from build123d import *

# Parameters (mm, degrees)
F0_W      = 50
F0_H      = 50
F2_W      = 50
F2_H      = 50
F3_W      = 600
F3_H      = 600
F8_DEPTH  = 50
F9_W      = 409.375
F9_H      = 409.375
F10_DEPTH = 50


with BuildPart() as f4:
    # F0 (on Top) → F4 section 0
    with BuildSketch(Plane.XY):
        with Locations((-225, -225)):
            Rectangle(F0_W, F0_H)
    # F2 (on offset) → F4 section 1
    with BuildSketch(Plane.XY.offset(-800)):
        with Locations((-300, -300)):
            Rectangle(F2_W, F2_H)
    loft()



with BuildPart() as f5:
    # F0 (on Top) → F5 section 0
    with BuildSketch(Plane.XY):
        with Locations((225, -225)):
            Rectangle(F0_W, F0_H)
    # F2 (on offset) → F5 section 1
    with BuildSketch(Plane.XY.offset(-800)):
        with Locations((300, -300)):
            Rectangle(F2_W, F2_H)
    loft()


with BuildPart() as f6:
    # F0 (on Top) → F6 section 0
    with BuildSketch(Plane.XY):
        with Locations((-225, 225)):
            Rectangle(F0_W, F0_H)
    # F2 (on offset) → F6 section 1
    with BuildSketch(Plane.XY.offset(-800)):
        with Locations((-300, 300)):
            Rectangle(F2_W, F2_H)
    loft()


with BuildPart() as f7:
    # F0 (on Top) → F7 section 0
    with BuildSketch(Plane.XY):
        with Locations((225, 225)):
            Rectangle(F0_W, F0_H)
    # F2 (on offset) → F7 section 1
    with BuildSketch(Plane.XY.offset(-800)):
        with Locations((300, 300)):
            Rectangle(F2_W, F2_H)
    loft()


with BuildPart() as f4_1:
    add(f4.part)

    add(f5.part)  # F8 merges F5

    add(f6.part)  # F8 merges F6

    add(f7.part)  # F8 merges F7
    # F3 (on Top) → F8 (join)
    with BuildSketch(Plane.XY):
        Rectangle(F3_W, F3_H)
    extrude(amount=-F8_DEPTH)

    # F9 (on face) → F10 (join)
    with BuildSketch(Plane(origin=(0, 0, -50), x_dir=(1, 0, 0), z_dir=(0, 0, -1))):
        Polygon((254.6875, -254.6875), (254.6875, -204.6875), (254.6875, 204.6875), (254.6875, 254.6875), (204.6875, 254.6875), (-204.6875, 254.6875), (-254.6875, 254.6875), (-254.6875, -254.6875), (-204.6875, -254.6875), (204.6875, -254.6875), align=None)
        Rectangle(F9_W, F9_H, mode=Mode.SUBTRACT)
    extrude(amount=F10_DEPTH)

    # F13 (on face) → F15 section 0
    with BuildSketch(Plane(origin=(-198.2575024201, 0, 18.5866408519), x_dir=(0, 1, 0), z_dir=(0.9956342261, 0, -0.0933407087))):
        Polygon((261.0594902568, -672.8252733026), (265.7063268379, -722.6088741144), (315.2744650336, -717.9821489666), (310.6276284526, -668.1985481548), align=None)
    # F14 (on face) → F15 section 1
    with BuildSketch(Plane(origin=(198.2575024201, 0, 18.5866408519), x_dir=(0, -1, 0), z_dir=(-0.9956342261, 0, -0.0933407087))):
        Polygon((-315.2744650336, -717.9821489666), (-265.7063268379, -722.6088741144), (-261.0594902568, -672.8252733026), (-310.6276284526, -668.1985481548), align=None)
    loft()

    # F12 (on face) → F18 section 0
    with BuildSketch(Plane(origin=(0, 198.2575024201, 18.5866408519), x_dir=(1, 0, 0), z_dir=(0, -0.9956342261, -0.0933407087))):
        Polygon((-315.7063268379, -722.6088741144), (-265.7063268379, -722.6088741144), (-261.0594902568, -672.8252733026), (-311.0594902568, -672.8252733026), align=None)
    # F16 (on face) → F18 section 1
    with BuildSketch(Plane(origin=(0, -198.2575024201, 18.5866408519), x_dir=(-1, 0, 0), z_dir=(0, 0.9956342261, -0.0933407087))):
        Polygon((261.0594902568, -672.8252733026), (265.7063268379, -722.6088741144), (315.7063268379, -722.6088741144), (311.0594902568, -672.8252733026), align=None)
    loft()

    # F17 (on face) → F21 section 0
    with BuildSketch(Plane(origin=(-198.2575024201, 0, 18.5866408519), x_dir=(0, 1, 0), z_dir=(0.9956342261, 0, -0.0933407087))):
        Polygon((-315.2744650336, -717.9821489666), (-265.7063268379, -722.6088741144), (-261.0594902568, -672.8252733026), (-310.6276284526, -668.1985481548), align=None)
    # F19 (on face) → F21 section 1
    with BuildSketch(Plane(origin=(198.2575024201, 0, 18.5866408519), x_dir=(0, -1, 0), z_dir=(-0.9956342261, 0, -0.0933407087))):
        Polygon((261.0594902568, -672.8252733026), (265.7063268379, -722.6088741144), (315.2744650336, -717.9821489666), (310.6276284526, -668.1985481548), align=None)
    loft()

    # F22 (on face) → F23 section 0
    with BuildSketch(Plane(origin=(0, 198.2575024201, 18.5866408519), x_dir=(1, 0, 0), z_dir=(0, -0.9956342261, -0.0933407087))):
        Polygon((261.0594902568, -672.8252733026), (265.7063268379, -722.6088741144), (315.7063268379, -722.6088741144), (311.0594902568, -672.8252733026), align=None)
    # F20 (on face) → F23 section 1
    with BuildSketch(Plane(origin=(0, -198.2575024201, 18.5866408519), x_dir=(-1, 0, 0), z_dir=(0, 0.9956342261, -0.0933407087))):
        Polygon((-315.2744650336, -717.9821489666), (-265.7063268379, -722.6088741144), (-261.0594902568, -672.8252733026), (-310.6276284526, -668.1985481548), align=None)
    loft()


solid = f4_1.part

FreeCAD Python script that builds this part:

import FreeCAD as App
import Part
import Sketcher
Q = App.Units.Quantity

doc = App.newDocument("Part")
body = doc.addObject("PartDesign::Body", "Body")

sketch1 = body.newObject("Sketcher::SketchObject", "Sketch")
sketch1.AttachmentSupport = (doc.getObject("XY_Plane"), [""])
sketch1.MapMode = "FlatFace"
sketch1.addGeometry(Part.LineSegment(App.Vector(-250, -200, 0), App.Vector(-250, -250, 0)), False)
sketch1.addGeometry(Part.LineSegment(App.Vector(-250, -250, 0), App.Vector(-200, -250, 0)), False)
sketch1.addGeometry(Part.LineSegment(App.Vector(-200, -250, 0), App.Vector(-200, -200, 0)), False)
sketch1.addGeometry(Part.LineSegment(App.Vector(-200, -200, 0), App.Vector(-250, -200, 0)), False)
sketch1.addConstraint(Sketcher.Constraint("Coincident", 0, 2, 1, 1))
sketch1.addConstraint(Sketcher.Constraint("Coincident", 1, 2, 2, 1))
sketch1.addConstraint(Sketcher.Constraint("Coincident", 2, 2, 3, 1))
sketch1.addConstraint(Sketcher.Constraint("Coincident", 3, 2, 0, 1))
sketch1.addConstraint(Sketcher.Constraint("Vertical", 0))
sketch1.addConstraint(Sketcher.Constraint("Horizontal", 1))
sketch1.addConstraint(Sketcher.Constraint("Vertical", 2))
sketch1.addConstraint(Sketcher.Constraint("Horizontal", 3))
sketch1.addConstraint(Sketcher.Constraint("Equal", 3, 0))
sketch1.addConstraint(Sketcher.Constraint("DistanceX", 1, 1, 1, 2, Q("50 mm")))
sketch1.addConstraint(Sketcher.Constraint("DistanceX", 0, 2, -1, 1, Q("250 mm")))
sketch1.addConstraint(Sketcher.Constraint("DistanceY", 0, 2, -1, 1, Q("250 mm")))

sketch2 = body.newObject("Sketcher::SketchObject", "Sketch001")
sketch2.AttachmentSupport = (doc.getObject("XY_Plane"), [""])
sketch2.MapMode = "FlatFace"
sketch2.AttachmentOffset = App.Placement(App.Vector(0, 0, -800), App.Rotation())
sketch2.addGeometry(Part.LineSegment(App.Vector(-325, -275, 0), App.Vector(-325, -325, 0)), False)
sketch2.addGeometry(Part.LineSegment(App.Vector(-325, -325, 0), App.Vector(-275, -325, 0)), False)
sketch2.addGeometry(Part.LineSegment(App.Vector(-275, -325, 0), App.Vector(-275, -275, 0)), False)
sketch2.addGeometry(Part.LineSegment(App.Vector(-275, -275, 0), App.Vector(-325, -275, 0)), False)
sketch2.addConstraint(Sketcher.Constraint("Coincident", 0, 2, 1, 1))
sketch2.addConstraint(Sketcher.Constraint("Coincident", 1, 2, 2, 1))
sketch2.addConstraint(Sketcher.Constraint("Coincident", 2, 2, 3, 1))
sketch2.addConstraint(Sketcher.Constraint("Coincident", 3, 2, 0, 1))
sketch2.addConstraint(Sketcher.Constraint("Vertical", 0))
sketch2.addConstraint(Sketcher.Constraint("Horizontal", 1))
sketch2.addConstraint(Sketcher.Constraint("Vertical", 2))
sketch2.addConstraint(Sketcher.Constraint("Horizontal", 3))
sketch2.addConstraint(Sketcher.Constraint("Equal", 3, 0))
sketch2.addConstraint(Sketcher.Constraint("DistanceX", 1, 1, 1, 2, Q("50 mm")))
sketch2.addConstraint(Sketcher.Constraint("DistanceX", 0, 2, -1, 1, Q("325 mm")))
sketch2.addConstraint(Sketcher.Constraint("DistanceY", 0, 2, -1, 1, Q("325 mm")))

additiveloft = body.newObject("PartDesign::AdditiveLoft", "AdditiveLoft")
additiveloft.Profile = sketch1
additiveloft.Sections = [sketch2]
body2 = doc.addObject("PartDesign::Body", "Body001")

sketch3 = body2.newObject("Sketcher::SketchObject", "Sketch002")
sketch3.AttachmentSupport = (doc.getObject("XY_Plane001"), [""])
sketch3.MapMode = "FlatFace"
sketch3.addGeometry(Part.LineSegment(App.Vector(200, -200, 0), App.Vector(200, -250, 0)), False)
sketch3.addGeometry(Part.LineSegment(App.Vector(200, -250, 0), App.Vector(250, -250, 0)), False)
sketch3.addGeometry(Part.LineSegment(App.Vector(250, -250, 0), App.Vector(250, -200, 0)), False)
sketch3.addGeometry(Part.LineSegment(App.Vector(250, -200, 0), App.Vector(200, -200, 0)), False)
sketch3.addConstraint(Sketcher.Constraint("Coincident", 0, 2, 1, 1))
sketch3.addConstraint(Sketcher.Constraint("Coincident", 1, 2, 2, 1))
sketch3.addConstraint(Sketcher.Constraint("Coincident", 2, 2, 3, 1))
sketch3.addConstraint(Sketcher.Constraint("Coincident", 3, 2, 0, 1))
sketch3.addConstraint(Sketcher.Constraint("Vertical", 0))
sketch3.addConstraint(Sketcher.Constraint("Horizontal", 1))
sketch3.addConstraint(Sketcher.Constraint("Vertical", 2))
sketch3.addConstraint(Sketcher.Constraint("Horizontal", 3))
sketch3.addConstraint(Sketcher.Constraint("Equal", 3, 0))
sketch3.addConstraint(Sketcher.Constraint("DistanceX", 1, 1, 1, 2, Q("50 mm")))
sketch3.addConstraint(Sketcher.Constraint("DistanceX", -1, 1, 0, 2, Q("200 mm")))
sketch3.addConstraint(Sketcher.Constraint("DistanceY", 0, 2, -1, 1, Q("250 mm")))

sketch4 = body2.newObject("Sketcher::SketchObject", "Sketch003")
sketch4.AttachmentSupport = (doc.getObject("XY_Plane001"), [""])
sketch4.MapMode = "FlatFace"
sketch4.AttachmentOffset = App.Placement(App.Vector(0, 0, -800), App.Rotation())
sketch4.addGeometry(Part.LineSegment(App.Vector(275, -275, 0), App.Vector(275, -325, 0)), False)
sketch4.addGeometry(Part.LineSegment(App.Vector(275, -325, 0), App.Vector(325, -325, 0)), False)
sketch4.addGeometry(Part.LineSegment(App.Vector(325, -325, 0), App.Vector(325, -275, 0)), False)
sketch4.addGeometry(Part.LineSegment(App.Vector(325, -275, 0), App.Vector(275, -275, 0)), False)
sketch4.addConstraint(Sketcher.Constraint("Coincident", 0, 2, 1, 1))
sketch4.addConstraint(Sketcher.Constraint("Coincident", 1, 2, 2, 1))
sketch4.addConstraint(Sketcher.Constraint("Coincident", 2, 2, 3, 1))
sketch4.addConstraint(Sketcher.Constraint("Coincident", 3, 2, 0, 1))
sketch4.addConstraint(Sketcher.Constraint("Vertical", 0))
sketch4.addConstraint(Sketcher.Constraint("Horizontal", 1))
sketch4.addConstraint(Sketcher.Constraint("Vertical", 2))
sketch4.addConstraint(Sketcher.Constraint("Horizontal", 3))
sketch4.addConstraint(Sketcher.Constraint("Equal", 3, 0))
sketch4.addConstraint(Sketcher.Constraint("DistanceX", 1, 1, 1, 2, Q("50 mm")))
sketch4.addConstraint(Sketcher.Constraint("DistanceX", -1, 1, 0, 2, Q("275 mm")))
sketch4.addConstraint(Sketcher.Constraint("DistanceY", 0, 2, -1, 1, Q("325 mm")))

additiveloft2 = body2.newObject("PartDesign::AdditiveLoft", "AdditiveLoft001")
additiveloft2.Profile = sketch3
additiveloft2.Sections = [sketch4]
body3 = doc.addObject("PartDesign::Body", "Body002")

sketch5 = body3.newObject("Sketcher::SketchObject", "Sketch004")
sketch5.AttachmentSupport = (doc.getObject("XY_Plane002"), [""])
sketch5.MapMode = "FlatFace"
sketch5.addGeometry(Part.LineSegment(App.Vector(-250, 250, 0), App.Vector(-250, 200, 0)), False)
sketch5.addGeometry(Part.LineSegment(App.Vector(-250, 200, 0), App.Vector(-200, 200, 0)), False)
sketch5.addGeometry(Part.LineSegment(App.Vector(-200, 200, 0), App.Vector(-200, 250, 0)), False)
sketch5.addGeometry(Part.LineSegment(App.Vector(-200, 250, 0), App.Vector(-250, 250, 0)), False)
sketch5.addConstraint(Sketcher.Constraint("Coincident", 0, 2, 1, 1))
sketch5.addConstraint(Sketcher.Constraint("Coincident", 1, 2, 2, 1))
sketch5.addConstraint(Sketcher.Constraint("Coincident", 2, 2, 3, 1))
sketch5.addConstraint(Sketcher.Constraint("Coincident", 3, 2, 0, 1))
sketch5.addConstraint(Sketcher.Constraint("Vertical", 0))
sketch5.addConstraint(Sketcher.Constraint("Horizontal", 1))
sketch5.addConstraint(Sketcher.Constraint("Vertical", 2))
sketch5.addConstraint(Sketcher.Constraint("Horizontal", 3))
sketch5.addConstraint(Sketcher.Constraint("Equal", 3, 0))
sketch5.addConstraint(Sketcher.Constraint("DistanceX", 1, 1, 1, 2, Q("50 mm")))
sketch5.addConstraint(Sketcher.Constraint("DistanceX", 0, 2, -1, 1, Q("250 mm")))
sketch5.addConstraint(Sketcher.Constraint("DistanceY", -1, 1, 0, 2, Q("200 mm")))

sketch6 = body3.newObject("Sketcher::SketchObject", "Sketch005")
sketch6.AttachmentSupport = (doc.getObject("XY_Plane002"), [""])
sketch6.MapMode = "FlatFace"
sketch6.AttachmentOffset = App.Placement(App.Vector(0, 0, -800), App.Rotation())
sketch6.addGeometry(Part.LineSegment(App.Vector(-325, 325, 0), App.Vector(-325, 275, 0)), False)
sketch6.addGeometry(Part.LineSegment(App.Vector(-325, 275, 0), App.Vector(-275, 275, 0)), False)
sketch6.addGeometry(Part.LineSegment(App.Vector(-275, 275, 0), App.Vector(-275, 325, 0)), False)
sketch6.addGeometry(Part.LineSegment(App.Vector(-275, 325, 0), App.Vector(-325, 325, 0)), False)
sketch6.addConstraint(Sketcher.Constraint("Coincident", 0, 2, 1, 1))
sketch6.addConstraint(Sketcher.Constraint("Coincident", 1, 2, 2, 1))
sketch6.addConstraint(Sketcher.Constraint("Coincident", 2, 2, 3, 1))
sketch6.addConstraint(Sketcher.Constraint("Coincident", 3, 2, 0, 1))
sketch6.addConstraint(Sketcher.Constraint("Vertical", 0))
sketch6.addConstraint(Sketcher.Constraint("Horizontal", 1))
sketch6.addConstraint(Sketcher.Constraint("Vertical", 2))
sketch6.addConstraint(Sketcher.Constraint("Horizontal", 3))
sketch6.addConstraint(Sketcher.Constraint("Equal", 3, 0))
sketch6.addConstraint(Sketcher.Constraint("DistanceX", 1, 1, 1, 2, Q("50 mm")))
sketch6.addConstraint(Sketcher.Constraint("DistanceX", 0, 2, -1, 1, Q("325 mm")))
sketch6.addConstraint(Sketcher.Constraint("DistanceY", -1, 1, 0, 2, Q("275 mm")))

additiveloft3 = body3.newObject("PartDesign::AdditiveLoft", "AdditiveLoft002")
additiveloft3.Profile = sketch5
additiveloft3.Sections = [sketch6]
body4 = doc.addObject("PartDesign::Body", "Body003")

sketch7 = body4.newObject("Sketcher::SketchObject", "Sketch006")
sketch7.AttachmentSupport = (doc.getObject("XY_Plane003"), [""])
sketch7.MapMode = "FlatFace"
sketch7.addGeometry(Part.LineSegment(App.Vector(200, 250, 0), App.Vector(200, 200, 0)), False)
sketch7.addGeometry(Part.LineSegment(App.Vector(200, 200, 0), App.Vector(250, 200, 0)), False)
sketch7.addGeometry(Part.LineSegment(App.Vector(250, 200, 0), App.Vector(250, 250, 0)), False)
sketch7.addGeometry(Part.LineSegment(App.Vector(250, 250, 0), App.Vector(200, 250, 0)), False)
sketch7.addConstraint(Sketcher.Constraint("Coincident", 0, 2, 1, 1))
sketch7.addConstraint(Sketcher.Constraint("Coincident", 1, 2, 2, 1))
sketch7.addConstraint(Sketcher.Constraint("Coincident", 2, 2, 3, 1))
sketch7.addConstraint(Sketcher.Constraint("Coincident", 3, 2, 0, 1))
sketch7.addConstraint(Sketcher.Constraint("Vertical", 0))
sketch7.addConstraint(Sketcher.Constraint("Horizontal", 1))
sketch7.addConstraint(Sketcher.Constraint("Vertical", 2))
sketch7.addConstraint(Sketcher.Constraint("Horizontal", 3))
sketch7.addConstraint(Sketcher.Constraint("Equal", 3, 0))
sketch7.addConstraint(Sketcher.Constraint("DistanceX", 1, 1, 1, 2, Q("50 mm")))
sketch7.addConstraint(Sketcher.Constraint("DistanceX", -1, 1, 0, 2, Q("200 mm")))
sketch7.addConstraint(Sketcher.Constraint("DistanceY", -1, 1, 0, 2, Q("200 mm")))

sketch8 = body4.newObject("Sketcher::SketchObject", "Sketch007")
sketch8.AttachmentSupport = (doc.getObject("XY_Plane003"), [""])
sketch8.MapMode = "FlatFace"
sketch8.AttachmentOffset = App.Placement(App.Vector(0, 0, -800), App.Rotation())
sketch8.addGeometry(Part.LineSegment(App.Vector(275, 325, 0), App.Vector(275, 275, 0)), False)
sketch8.addGeometry(Part.LineSegment(App.Vector(275, 275, 0), App.Vector(325, 275, 0)), False)
sketch8.addGeometry(Part.LineSegment(App.Vector(325, 275, 0), App.Vector(325, 325, 0)), False)
sketch8.addGeometry(Part.LineSegment(App.Vector(325, 325, 0), App.Vector(275, 325, 0)), False)
sketch8.addConstraint(Sketcher.Constraint("Coincident", 0, 2, 1, 1))
sketch8.addConstraint(Sketcher.Constraint("Coincident", 1, 2, 2, 1))
sketch8.addConstraint(Sketcher.Constraint("Coincident", 2, 2, 3, 1))
sketch8.addConstraint(Sketcher.Constraint("Coincident", 3, 2, 0, 1))
sketch8.addConstraint(Sketcher.Constraint("Vertical", 0))
sketch8.addConstraint(Sketcher.Constraint("Horizontal", 1))
sketch8.addConstraint(Sketcher.Constraint("Vertical", 2))
sketch8.addConstraint(Sketcher.Constraint("Horizontal", 3))
sketch8.addConstraint(Sketcher.Constraint("Equal", 3, 0))
sketch8.addConstraint(Sketcher.Constraint("DistanceX", 1, 1, 1, 2, Q("50 mm")))
sketch8.addConstraint(Sketcher.Constraint("DistanceX", -1, 1, 0, 2, Q("275 mm")))
sketch8.addConstraint(Sketcher.Constraint("DistanceY", -1, 1, 0, 2, Q("275 mm")))

additiveloft4 = body4.newObject("PartDesign::AdditiveLoft", "AdditiveLoft003")
additiveloft4.Profile = sketch7
additiveloft4.Sections = [sketch8]
body.AllowCompound = True
doc.recompute()

boolean = body.newObject("PartDesign::Boolean", "Boolean")
boolean.Type = "Fuse"
boolean.addObjects([body2])
doc.recompute()

boolean2 = body.newObject("PartDesign::Boolean", "Boolean001")
boolean2.Type = "Fuse"
boolean2.addObjects([body3])
doc.recompute()

boolean3 = body.newObject("PartDesign::Boolean", "Boolean002")
boolean3.Type = "Fuse"
boolean3.addObjects([body4])

sketch9 = body.newObject("Sketcher::SketchObject", "Sketch008")
sketch9.AttachmentSupport = (doc.getObject("XY_Plane"), [""])
sketch9.MapMode = "FlatFace"
sketch9.addGeometry(Part.LineSegment(App.Vector(-300, 300, 0), App.Vector(-300, -300, 0)), False)
sketch9.addGeometry(Part.LineSegment(App.Vector(-300, -300, 0), App.Vector(300, -300, 0)), False)
sketch9.addGeometry(Part.LineSegment(App.Vector(300, -300, 0), App.Vector(300, 300, 0)), False)
sketch9.addGeometry(Part.LineSegment(App.Vector(300, 300, 0), App.Vector(-300, 300, 0)), False)
sketch9.addConstraint(Sketcher.Constraint("Coincident", 0, 2, 1, 1))
sketch9.addConstraint(Sketcher.Constraint("Coincident", 1, 2, 2, 1))
sketch9.addConstraint(Sketcher.Constraint("Coincident", 2, 2, 3, 1))
sketch9.addConstraint(Sketcher.Constraint("Coincident", 3, 2, 0, 1))
sketch9.addConstraint(Sketcher.Constraint("Vertical", 0))
sketch9.addConstraint(Sketcher.Constraint("Horizontal", 1))
sketch9.addConstraint(Sketcher.Constraint("Vertical", 2))
sketch9.addConstraint(Sketcher.Constraint("Horizontal", 3))
sketch9.addConstraint(Sketcher.Constraint("Symmetric", 0, 2, 2, 2, -1, 1))
sketch9.addConstraint(Sketcher.Constraint("Equal", 3, 0))
sketch9.addConstraint(Sketcher.Constraint("DistanceX", 1, 1, 1, 2, Q("600 mm")))
pad1 = body.newObject("PartDesign::Pad", "Pad")
pad1.Profile = sketch9
pad1.Length = 50
pad1.Reversed = True

sketch10 = body.newObject("Sketcher::SketchObject", "Sketch009")
sketch10.AttachmentSupport = (doc.getObject("XY_Plane"), [""])
sketch10.MapMode = "FlatFace"
sketch10.AttachmentOffset = App.Placement(App.Vector(0, 0, -50), App.Rotation())
sketch10.addGeometry(Part.LineSegment(App.Vector(254.6875, 254.6875, 0), App.Vector(254.6875, -254.6875, 0)), False)
sketch10.addGeometry(Part.LineSegment(App.Vector(254.6875, -254.6875, 0), App.Vector(-254.6875, -254.6875, 0)), False)
sketch10.addGeometry(Part.LineSegment(App.Vector(-254.6875, -254.6875, 0), App.Vector(-254.6875, 254.6875, 0)), False)
sketch10.addGeometry(Part.LineSegment(App.Vector(-254.6875, 254.6875, 0), App.Vector(254.6875, 254.6875, 0)), False)
sketch10.addGeometry(Part.LineSegment(App.Vector(204.6875, 204.6875, 0), App.Vector(-204.6875, 204.6875, 0)), False)
sketch10.addGeometry(Part.LineSegment(App.Vector(-204.6875, 204.6875, 0), App.Vector(-204.6875, -204.6875, 0)), False)
sketch10.addGeometry(Part.LineSegment(App.Vector(-204.6875, -204.6875, 0), App.Vector(204.6875, -204.6875, 0)), False)
sketch10.addGeometry(Part.LineSegment(App.Vector(204.6875, -204.6875, 0), App.Vector(204.6875, 204.6875, 0)), False)
sketch10.addConstraint(Sketcher.Constraint("Coincident", 0, 2, 1, 1))
sketch10.addConstraint(Sketcher.Constraint("Coincident", 1, 2, 2, 1))
sketch10.addConstraint(Sketcher.Constraint("Coincident", 2, 2, 3, 1))
sketch10.addConstraint(Sketcher.Constraint("Coincident", 3, 2, 0, 1))
sketch10.addConstraint(Sketcher.Constraint("Coincident", 4, 2, 5, 1))
sketch10.addConstraint(Sketcher.Constraint("Coincident", 5, 2, 6, 1))
sketch10.addConstraint(Sketcher.Constraint("Coincident", 6, 2, 7, 1))
sketch10.addConstraint(Sketcher.Constraint("Coincident", 7, 2, 4, 1))
sketch10.addConstraint(Sketcher.Constraint("Vertical", 0))
sketch10.addConstraint(Sketcher.Constraint("Horizontal", 1))
sketch10.addConstraint(Sketcher.Constraint("Vertical", 2))
sketch10.addConstraint(Sketcher.Constraint("Horizontal", 3))
sketch10.addConstraint(Sketcher.Constraint("Horizontal", 4))
sketch10.addConstraint(Sketcher.Constraint("Vertical", 5))
sketch10.addConstraint(Sketcher.Constraint("Horizontal", 6))
sketch10.addConstraint(Sketcher.Constraint("Vertical", 7))
sketch10.addConstraint(Sketcher.Constraint("Symmetric", 0, 2, 2, 2, -1, 1))
sketch10.addConstraint(Sketcher.Constraint("Symmetric", 4, 2, 6, 2, -1, 1))
sketch10.addConstraint(Sketcher.Constraint("Equal", 3, 0))
sketch10.addConstraint(Sketcher.Constraint("Equal", 6, 5))
sketch10.addConstraint(Sketcher.Constraint("DistanceX", 2, 2, 4, 2, Q("50 mm")))
sketch10.addConstraint(Sketcher.Constraint("DistanceX", 1, 2, 1, 1, Q("509.375 mm")))
pad2 = body.newObject("PartDesign::Pad", "Pad001")
pad2.Profile = sketch10
pad2.Length = 50
pad2.Reversed = True

sketch11 = body.newObject("Sketcher::SketchObject", "Sketch010")
sketch11.Placement = App.Placement(App.Vector(-198.257502, 0, 18.586641), App.Rotation(App.Vector(0, 1, 0), App.Vector(0.093340709, 0, 0.995634226), App.Vector(0.995634226, 0, -0.093340709), "ZXY"))
sketch11.addGeometry(Part.LineSegment(App.Vector(261.05949, -672.825273, 0), App.Vector(265.706327, -722.608874, 0)), False)
sketch11.addGeometry(Part.LineSegment(App.Vector(265.706327, -722.608874, 0), App.Vector(315.274465, -717.982149, 0)), False)
sketch11.addGeometry(Part.LineSegment(App.Vector(315.274465, -717.982149, 0), App.Vector(310.627628, -668.198548, 0)), False)
sketch11.addGeometry(Part.LineSegment(App.Vector(310.627628, -668.198548, 0), App.Vector(261.05949, -672.825273, 0)), False)
sketch11.addConstraint(Sketcher.Constraint("Coincident", 0, 2, 1, 1))
sketch11.addConstraint(Sketcher.Constraint("Coincident", 1, 2, 2, 1))
sketch11.addConstraint(Sketcher.Constraint("Coincident", 2, 2, 3, 1))
sketch11.addConstraint(Sketcher.Constraint("Coincident", 3, 2, 0, 1))
sketch11.addConstraint(Sketcher.Constraint("Perpendicular", 0, 1))
sketch11.addConstraint(Sketcher.Constraint("Perpendicular", 1, 2))
sketch11.addConstraint(Sketcher.Constraint("Perpendicular", 2, 3))
sketch11.addConstraint(Sketcher.Constraint("Distance", 0, Q("50 mm")))
sketch11.addConstraint(Sketcher.Constraint("Distance", 1, Q("49.783601 mm")))
sketch11.addConstraint(Sketcher.Constraint("DistanceY", 1, 2, 2, 2, Q("49.783601 mm")))
sketch11.addConstraint(Sketcher.Constraint("DistanceY", 1, 2, -1, 1, Q("717.982149 mm")))
sketch11.addConstraint(Sketcher.Constraint("DistanceX", -1, 1, 2, 2, Q("310.627628 mm")))

sketch12 = body.newObject("Sketcher::SketchObject", "Sketch011")
sketch12.Placement = App.Placement(App.Vector(198.257502, 0, 18.586641), App.Rotation(App.Vector(0, -1, 0), App.Vector(-0.093340709, 0, 0.995634226), App.Vector(-0.995634226, 0, -0.093340709), "ZXY"))
sketch12.addGeometry(Part.LineSegment(App.Vector(-315.274465, -717.982149, 0), App.Vector(-265.706327, -722.608874, 0)), False)
sketch12.addGeometry(Part.LineSegment(App.Vector(-265.706327, -722.608874, 0), App.Vector(-261.05949, -672.825273, 0)), False)
sketch12.addGeometry(Part.LineSegment(App.Vector(-261.05949, -672.825273, 0), App.Vector(-310.627628, -668.198548, 0)), False)
sketch12.addGeometry(Part.LineSegment(App.Vector(-310.627628, -668.198548, 0), App.Vector(-315.274465, -717.982149, 0)), False)
sketch12.addConstraint(Sketcher.Constraint("Coincident", 0, 2, 1, 1))
sketch12.addConstraint(Sketcher.Constraint("Coincident", 1, 2, 2, 1))
sketch12.addConstraint(Sketcher.Constraint("Coincident", 2, 2, 3, 1))
sketch12.addConstraint(Sketcher.Constraint("Coincident", 3, 2, 0, 1))
sketch12.addConstraint(Sketcher.Constraint("Perpendicular", 0, 1))
sketch12.addConstraint(Sketcher.Constraint("Perpendicular", 1, 2))
sketch12.addConstraint(Sketcher.Constraint("Perpendicular", 2, 3))
sketch12.addConstraint(Sketcher.Constraint("Distance", 1, Q("50 mm")))
sketch12.addConstraint(Sketcher.Constraint("Distance", 0, Q("49.783601 mm")))
sketch12.addConstraint(Sketcher.Constraint("DistanceY", 0, 2, 1, 2, Q("49.783601 mm")))
sketch12.addConstraint(Sketcher.Constraint("DistanceX", 1, 2, -1, 1, Q("261.05949 mm")))
sketch12.addConstraint(Sketcher.Constraint("DistanceY", 2, 2, -1, 1, Q("668.198548 mm")))

additiveloft5 = body.newObject("PartDesign::AdditiveLoft", "AdditiveLoft004")
additiveloft5.Profile = sketch11
additiveloft5.Sections = [sketch12]

sketch13 = body.newObject("Sketcher::SketchObject", "Sketch012")
sketch13.Placement = App.Placement(App.Vector(0, 198.257502, 18.586641), App.Rotation(App.Vector(1, 0, 0), App.Vector(0, -0.093340709, 0.995634226), App.Vector(0, -0.995634226, -0.093340709), "ZXY"))
sketch13.addGeometry(Part.LineSegment(App.Vector(-315.706327, -722.608874, 0), App.Vector(-265.706327, -722.608874, 0)), False)
sketch13.addGeometry(Part.LineSegment(App.Vector(-265.706327, -722.608874, 0), App.Vector(-261.05949, -672.825273, 0)), False)
sketch13.addGeometry(Part.LineSegment(App.Vector(-261.05949, -672.825273, 0), App.Vector(-311.05949, -672.825273, 0)), False)
sketch13.addGeometry(Part.LineSegment(App.Vector(-311.05949, -672.825273, 0), App.Vector(-315.706327, -722.608874, 0)), False)
sketch13.addConstraint(Sketcher.Constraint("Coincident", 0, 2, 1, 1))
sketch13.addConstraint(Sketcher.Constraint("Coincident", 1, 2, 2, 1))
sketch13.addConstraint(Sketcher.Constraint("Coincident", 2, 2, 3, 1))
sketch13.addConstraint(Sketcher.Constraint("Coincident", 3, 2, 0, 1))
sketch13.addConstraint(Sketcher.Constraint("Horizontal", 0))
sketch13.addConstraint(Sketcher.Constraint("Horizontal", 2))
sketch13.addConstraint(Sketcher.Constraint("Parallel", 1, 3))
sketch13.addConstraint(Sketcher.Constraint("DistanceX", 0, 1, 0, 2, Q("50 mm")))
sketch13.addConstraint(Sketcher.Constraint("Distance", 1, Q("50 mm")))
sketch13.addConstraint(Sketcher.Constraint("DistanceY", 0, 2, 1, 2, Q("49.783601 mm")))
sketch13.addConstraint(Sketcher.Constraint("DistanceX", 1, 2, -1, 1, Q("261.05949 mm")))
sketch13.addConstraint(Sketcher.Constraint("DistanceY", 0, 2, -1, 1, Q("722.608874 mm")))

sketch14 = body.newObject("Sketcher::SketchObject", "Sketch013")
sketch14.Placement = App.Placement(App.Vector(0, -198.257502, 18.586641), App.Rotation(App.Vector(-1, 0, 0), App.Vector(0, 0.093340709, 0.995634226), App.Vector(0, 0.995634226, -0.093340709), "ZXY"))
sketch14.addGeometry(Part.LineSegment(App.Vector(261.05949, -672.825273, 0), App.Vector(265.706327, -722.608874, 0)), False)
sketch14.addGeometry(Part.LineSegment(App.Vector(265.706327, -722.608874, 0), App.Vector(315.706327, -722.608874, 0)), False)
sketch14.addGeometry(Part.LineSegment(App.Vector(315.706327, -722.608874, 0), App.Vector(311.05949, -672.825273, 0)), False)
sketch14.addGeometry(Part.LineSegment(App.Vector(311.05949, -672.825273, 0), App.Vector(261.05949, -672.825273, 0)), False)
sketch14.addConstraint(Sketcher.Constraint("Coincident", 0, 2, 1, 1))
sketch14.addConstraint(Sketcher.Constraint("Coincident", 1, 2, 2, 1))
sketch14.addConstraint(Sketcher.Constraint("Coincident", 2, 2, 3, 1))
sketch14.addConstraint(Sketcher.Constraint("Coincident", 3, 2, 0, 1))
sketch14.addConstraint(Sketcher.Constraint("Horizontal", 1))
sketch14.addConstraint(Sketcher.Constraint("Horizontal", 3))
sketch14.addConstraint(Sketcher.Constraint("Parallel", 0, 2))
sketch14.addConstraint(Sketcher.Constraint("DistanceX", 1, 1, 1, 2, Q("50 mm")))
sketch14.addConstraint(Sketcher.Constraint("Distance", 0, Q("50 mm")))
sketch14.addConstraint(Sketcher.Constraint("DistanceY", 1, 2, 2, 2, Q("49.783601 mm")))
sketch14.addConstraint(Sketcher.Constraint("DistanceX", -1, 1, 2, 2, Q("311.05949 mm")))
sketch14.addConstraint(Sketcher.Constraint("DistanceY", 0, 2, -1, 1, Q("722.608874 mm")))

additiveloft6 = body.newObject("PartDesign::AdditiveLoft", "AdditiveLoft005")
additiveloft6.Profile = sketch13
additiveloft6.Sections = [sketch14]

sketch15 = body.newObject("Sketcher::SketchObject", "Sketch014")
sketch15.Placement = App.Placement(App.Vector(-198.257502, 0, 18.586641), App.Rotation(App.Vector(0, 1, 0), App.Vector(0.093340709, 0, 0.995634226), App.Vector(0.995634226, 0, -0.093340709), "ZXY"))
sketch15.addGeometry(Part.LineSegment(App.Vector(-315.274465, -717.982149, 0), App.Vector(-265.706327, -722.608874, 0)), False)
sketch15.addGeometry(Part.LineSegment(App.Vector(-265.706327, -722.608874, 0), App.Vector(-261.05949, -672.825273, 0)), False)
sketch15.addGeometry(Part.LineSegment(App.Vector(-261.05949, -672.825273, 0), App.Vector(-310.627628, -668.198548, 0)), False)
sketch15.addGeometry(Part.LineSegment(App.Vector(-310.627628, -668.198548, 0), App.Vector(-315.274465, -717.982149, 0)), False)
sketch15.addConstraint(Sketcher.Constraint("Coincident", 0, 2, 1, 1))
sketch15.addConstraint(Sketcher.Constraint("Coincident", 1, 2, 2, 1))
sketch15.addConstraint(Sketcher.Constraint("Coincident", 2, 2, 3, 1))
sketch15.addConstraint(Sketcher.Constraint("Coincident", 3, 2, 0, 1))
sketch15.addConstraint(Sketcher.Constraint("Perpendicular", 0, 1))
sketch15.addConstraint(Sketcher.Constraint("Perpendicular", 1, 2))
sketch15.addConstraint(Sketcher.Constraint("Perpendicular", 2, 3))
sketch15.addConstraint(Sketcher.Constraint("Distance", 1, Q("50 mm")))
sketch15.addConstraint(Sketcher.Constraint("Distance", 0, Q("49.783601 mm")))
sketch15.addConstraint(Sketcher.Constraint("DistanceY", 0, 2, 1, 2, Q("49.783601 mm")))
sketch15.addConstraint(Sketcher.Constraint("DistanceX", 1, 2, -1, 1, Q("261.05949 mm")))
sketch15.addConstraint(Sketcher.Constraint("DistanceY", 2, 2, -1, 1, Q("668.198548 mm")))

sketch16 = body.newObject("Sketcher::SketchObject", "Sketch015")
sketch16.Placement = App.Placement(App.Vector(198.257502, 0, 18.586641), App.Rotation(App.Vector(0, -1, 0), App.Vector(-0.093340709, 0, 0.995634226), App.Vector(-0.995634226, 0, -0.093340709), "ZXY"))
sketch16.addGeometry(Part.LineSegment(App.Vector(261.05949, -672.825273, 0), App.Vector(265.706327, -722.608874, 0)), False)
sketch16.addGeometry(Part.LineSegment(App.Vector(265.706327, -722.608874, 0), App.Vector(315.274465, -717.982149, 0)), False)
sketch16.addGeometry(Part.LineSegment(App.Vector(315.274465, -717.982149, 0), App.Vector(310.627628, -668.198548, 0)), False)
sketch16.addGeometry(Part.LineSegment(App.Vector(310.627628, -668.198548, 0), App.Vector(261.05949, -672.825273, 0)), False)
sketch16.addConstraint(Sketcher.Constraint("Coincident", 0, 2, 1, 1))
sketch16.addConstraint(Sketcher.Constraint("Coincident", 1, 2, 2, 1))
sketch16.addConstraint(Sketcher.Constraint("Coincident", 2, 2, 3, 1))
sketch16.addConstraint(Sketcher.Constraint("Coincident", 3, 2, 0, 1))
sketch16.addConstraint(Sketcher.Constraint("Perpendicular", 0, 1))
sketch16.addConstraint(Sketcher.Constraint("Perpendicular", 1, 2))
sketch16.addConstraint(Sketcher.Constraint("Perpendicular", 2, 3))
sketch16.addConstraint(Sketcher.Constraint("Distance", 0, Q("50 mm")))
sketch16.addConstraint(Sketcher.Constraint("Distance", 1, Q("49.783601 mm")))
sketch16.addConstraint(Sketcher.Constraint("DistanceY", 1, 2, 2, 2, Q("49.783601 mm")))
sketch16.addConstraint(Sketcher.Constraint("DistanceY", 1, 2, -1, 1, Q("717.982149 mm")))
sketch16.addConstraint(Sketcher.Constraint("DistanceX", -1, 1, 2, 2, Q("310.627628 mm")))

additiveloft7 = body.newObject("PartDesign::AdditiveLoft", "AdditiveLoft006")
additiveloft7.Profile = sketch15
additiveloft7.Sections = [sketch16]

sketch17 = body.newObject("Sketcher::SketchObject", "Sketch016")
sketch17.Placement = App.Placement(App.Vector(0, 198.257502, 18.586641), App.Rotation(App.Vector(1, 0, 0), App.Vector(0, -0.093340709, 0.995634226), App.Vector(0, -0.995634226, -0.093340709), "ZXY"))
sketch17.addGeometry(Part.LineSegment(App.Vector(261.05949, -672.825273, 0), App.Vector(265.706327, -722.608874, 0)), False)
sketch17.addGeometry(Part.LineSegment(App.Vector(265.706327, -722.608874, 0), App.Vector(315.706327, -722.608874, 0)), False)
sketch17.addGeometry(Part.LineSegment(App.Vector(315.706327, -722.608874, 0), App.Vector(311.05949, -672.825273, 0)), False)
sketch17.addGeometry(Part.LineSegment(App.Vector(311.05949, -672.825273, 0), App.Vector(261.05949, -672.825273, 0)), False)
sketch17.addConstraint(Sketcher.Constraint("Coincident", 0, 2, 1, 1))
sketch17.addConstraint(Sketcher.Constraint("Coincident", 1, 2, 2, 1))
sketch17.addConstraint(Sketcher.Constraint("Coincident", 2, 2, 3, 1))
sketch17.addConstraint(Sketcher.Constraint("Coincident", 3, 2, 0, 1))
sketch17.addConstraint(Sketcher.Constraint("Horizontal", 1))
sketch17.addConstraint(Sketcher.Constraint("Horizontal", 3))
sketch17.addConstraint(Sketcher.Constraint("Parallel", 0, 2))
sketch17.addConstraint(Sketcher.Constraint("DistanceX", 1, 1, 1, 2, Q("50 mm")))
sketch17.addConstraint(Sketcher.Constraint("Distance", 0, Q("50 mm")))
sketch17.addConstraint(Sketcher.Constraint("DistanceY", 1, 2, 2, 2, Q("49.783601 mm")))
sketch17.addConstraint(Sketcher.Constraint("DistanceX", -1, 1, 2, 2, Q("311.05949 mm")))
sketch17.addConstraint(Sketcher.Constraint("DistanceY", 0, 2, -1, 1, Q("722.608874 mm")))

sketch18 = body.newObject("Sketcher::SketchObject", "Sketch017")
sketch18.Placement = App.Placement(App.Vector(0, -198.257502, 18.586641), App.Rotation(App.Vector(-1, 0, 0), App.Vector(0, 0.093340709, 0.995634226), App.Vector(0, 0.995634226, -0.093340709), "ZXY"))
sketch18.addGeometry(Part.LineSegment(App.Vector(-315.274465, -717.982149, 0), App.Vector(-265.706327, -722.608874, 0)), False)
sketch18.addGeometry(Part.LineSegment(App.Vector(-265.706327, -722.608874, 0), App.Vector(-261.05949, -672.825273, 0)), False)
sketch18.addGeometry(Part.LineSegment(App.Vector(-261.05949, -672.825273, 0), App.Vector(-310.627628, -668.198548, 0)), False)
sketch18.addGeometry(Part.LineSegment(App.Vector(-310.627628, -668.198548, 0), App.Vector(-315.274465, -717.982149, 0)), False)
sketch18.addConstraint(Sketcher.Constraint("Coincident", 0, 2, 1, 1))
sketch18.addConstraint(Sketcher.Constraint("Coincident", 1, 2, 2, 1))
sketch18.addConstraint(Sketcher.Constraint("Coincident", 2, 2, 3, 1))
sketch18.addConstraint(Sketcher.Constraint("Coincident", 3, 2, 0, 1))
sketch18.addConstraint(Sketcher.Constraint("Perpendicular", 0, 1))
sketch18.addConstraint(Sketcher.Constraint("Perpendicular", 1, 2))
sketch18.addConstraint(Sketcher.Constraint("Perpendicular", 2, 3))
sketch18.addConstraint(Sketcher.Constraint("Distance", 1, Q("50 mm")))
sketch18.addConstraint(Sketcher.Constraint("Distance", 0, Q("49.783601 mm")))
sketch18.addConstraint(Sketcher.Constraint("DistanceY", 0, 2, 1, 2, Q("49.783601 mm")))
sketch18.addConstraint(Sketcher.Constraint("DistanceX", 1, 2, -1, 1, Q("261.05949 mm")))
sketch18.addConstraint(Sketcher.Constraint("DistanceY", 2, 2, -1, 1, Q("668.198548 mm")))

additiveloft8 = body.newObject("PartDesign::AdditiveLoft", "AdditiveLoft007")
additiveloft8.Profile = sketch17
additiveloft8.Sections = [sketch18]

doc.recompute()
